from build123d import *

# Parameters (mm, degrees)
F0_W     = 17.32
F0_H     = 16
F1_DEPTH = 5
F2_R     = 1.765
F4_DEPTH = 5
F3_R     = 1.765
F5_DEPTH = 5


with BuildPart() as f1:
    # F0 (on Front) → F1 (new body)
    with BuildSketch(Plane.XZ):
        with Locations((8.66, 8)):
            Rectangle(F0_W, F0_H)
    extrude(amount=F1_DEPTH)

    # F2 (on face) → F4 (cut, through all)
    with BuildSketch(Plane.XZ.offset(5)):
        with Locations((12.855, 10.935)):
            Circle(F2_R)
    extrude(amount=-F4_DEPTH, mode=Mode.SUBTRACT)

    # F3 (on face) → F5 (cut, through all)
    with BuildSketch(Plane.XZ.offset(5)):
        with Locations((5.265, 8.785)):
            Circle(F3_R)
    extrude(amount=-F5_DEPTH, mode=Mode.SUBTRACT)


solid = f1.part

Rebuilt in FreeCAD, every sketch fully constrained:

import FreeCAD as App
import Part
import Sketcher
from FreeCAD import Vector
Q = App.Units.Quantity


def add_polygon(sketch, points):
    """Adds a closed chain of lines whose ends are joined by coincident constraints."""
    first, n = sketch.GeometryCount, len(points)
    for a, b in zip(points, points[1:] + points[:1]):
        sketch.addGeometry(Part.LineSegment(App.Vector(*a, 0), App.Vector(*b, 0)), False)
    for i in range(n):
        sketch.addConstraint(Sketcher.Constraint("Coincident", first + i, 2, first + (i + 1) % n, 1))

doc = App.newDocument("Part")
params = doc.addObject("Spreadsheet::Sheet", "Params")
for row, (alias, value) in enumerate([
    ("sketch1_height", "16 mm"),
    ("sketch1_width", "17.32 mm"),
    ("pad1_length", "5 mm"),
    ("sketch2_diameter", "3.53 mm"),
    ("sketch3_diameter", "3.53 mm"),
], start=1):
    params.set(f"A{row}", alias)
    params.set(f"B{row}", "=" + value)
    params.setAlias(f"B{row}", alias)

body = doc.addObject("PartDesign::Body", "Body")

sketch1 = body.newObject("Sketcher::SketchObject", "Sketch")
sketch1.AttachmentSupport = (doc.getObject("XZ_Plane"), [""])
sketch1.MapMode = "FlatFace"
add_polygon(sketch1, [(0, 16), (0, 0), (17, 0), (17, 16)])
sketch1.addConstraint(Sketcher.Constraint("Vertical", 0))
sketch1.addConstraint(Sketcher.Constraint("Horizontal", 1))
sketch1.addConstraint(Sketcher.Constraint("Vertical", 2))
sketch1.addConstraint(Sketcher.Constraint("Horizontal", 3))
sketch1.addConstraint(Sketcher.Constraint("Coincident", 0, 2, -1, 1))
sketch1.addConstraint(Sketcher.Constraint("DistanceY", 0, 2, 0, 1, Q("16 mm")))
sketch1.addConstraint(Sketcher.Constraint("DistanceX", 1, 1, 1, 2, Q("17.32 mm")))
sketch1.setExpression("Constraints[9]", "Params.sketch1_height")
sketch1.setExpression("Constraints[10]", "Params.sketch1_width")
pad1 = body.newObject("PartDesign::Pad", "Pad")
pad1.Profile = sketch1
pad1.setExpression("Length", "Params.pad1_length")

sketch2 = body.newObject("Sketcher::SketchObject", "Sketch001")
sketch2.AttachmentSupport = (doc.getObject("XZ_Plane"), [""])
sketch2.MapMode = "FlatFace"
sketch2.AttachmentOffset = App.Placement(Vector(0, 0, 5), App.Rotation())
sketch2.addGeometry(Part.Circle(Vector(12.9, 10.9, 0), Vector(0, 0, 1), 1.8), False)
sketch2.addConstraint(Sketcher.Constraint("Diameter", 0, Q("3.53 mm")))
sketch2.addConstraint(Sketcher.Constraint("DistanceX", -1, 1, 0, 3, Q("12.855 mm")))
sketch2.addConstraint(Sketcher.Constraint("DistanceY", -1, 1, 0, 3, Q("10.935 mm")))
sketch2.setExpression("Constraints[0]", "Params.sketch2_diameter")
pocket1 = body.newObject("PartDesign::Pocket", "Pocket")
pocket1.Profile = sketch2
pocket1.Type = "ThroughAll"

sketch3 = body.newObject("Sketcher::SketchObject", "Sketch002")
sketch3.AttachmentSupport = (doc.getObject("XZ_Plane"), [""])
sketch3.MapMode = "FlatFace"
sketch3.AttachmentOffset = App.Placement(Vector(0, 0, 5), App.Rotation())
sketch3.addGeometry(Part.Circle(Vector(5.3, 8.8, 0), Vector(0, 0, 1), 1.8), False)
sketch3.addConstraint(Sketcher.Constraint("Diameter", 0, Q("3.53 mm")))
sketch3.addConstraint(Sketcher.Constraint("DistanceX", -1, 1, 0, 3, Q("5.265 mm")))
sketch3.addConstraint(Sketcher.Constraint("DistanceY", -1, 1, 0, 3, Q("8.785 mm")))
sketch3.setExpression("Constraints[0]", "Params.sketch3_diameter")
pocket2 = body.newObject("PartDesign::Pocket", "Pocket001")
pocket2.Profile = sketch3
pocket2.Type = "ThroughAll"

doc.recompute()
